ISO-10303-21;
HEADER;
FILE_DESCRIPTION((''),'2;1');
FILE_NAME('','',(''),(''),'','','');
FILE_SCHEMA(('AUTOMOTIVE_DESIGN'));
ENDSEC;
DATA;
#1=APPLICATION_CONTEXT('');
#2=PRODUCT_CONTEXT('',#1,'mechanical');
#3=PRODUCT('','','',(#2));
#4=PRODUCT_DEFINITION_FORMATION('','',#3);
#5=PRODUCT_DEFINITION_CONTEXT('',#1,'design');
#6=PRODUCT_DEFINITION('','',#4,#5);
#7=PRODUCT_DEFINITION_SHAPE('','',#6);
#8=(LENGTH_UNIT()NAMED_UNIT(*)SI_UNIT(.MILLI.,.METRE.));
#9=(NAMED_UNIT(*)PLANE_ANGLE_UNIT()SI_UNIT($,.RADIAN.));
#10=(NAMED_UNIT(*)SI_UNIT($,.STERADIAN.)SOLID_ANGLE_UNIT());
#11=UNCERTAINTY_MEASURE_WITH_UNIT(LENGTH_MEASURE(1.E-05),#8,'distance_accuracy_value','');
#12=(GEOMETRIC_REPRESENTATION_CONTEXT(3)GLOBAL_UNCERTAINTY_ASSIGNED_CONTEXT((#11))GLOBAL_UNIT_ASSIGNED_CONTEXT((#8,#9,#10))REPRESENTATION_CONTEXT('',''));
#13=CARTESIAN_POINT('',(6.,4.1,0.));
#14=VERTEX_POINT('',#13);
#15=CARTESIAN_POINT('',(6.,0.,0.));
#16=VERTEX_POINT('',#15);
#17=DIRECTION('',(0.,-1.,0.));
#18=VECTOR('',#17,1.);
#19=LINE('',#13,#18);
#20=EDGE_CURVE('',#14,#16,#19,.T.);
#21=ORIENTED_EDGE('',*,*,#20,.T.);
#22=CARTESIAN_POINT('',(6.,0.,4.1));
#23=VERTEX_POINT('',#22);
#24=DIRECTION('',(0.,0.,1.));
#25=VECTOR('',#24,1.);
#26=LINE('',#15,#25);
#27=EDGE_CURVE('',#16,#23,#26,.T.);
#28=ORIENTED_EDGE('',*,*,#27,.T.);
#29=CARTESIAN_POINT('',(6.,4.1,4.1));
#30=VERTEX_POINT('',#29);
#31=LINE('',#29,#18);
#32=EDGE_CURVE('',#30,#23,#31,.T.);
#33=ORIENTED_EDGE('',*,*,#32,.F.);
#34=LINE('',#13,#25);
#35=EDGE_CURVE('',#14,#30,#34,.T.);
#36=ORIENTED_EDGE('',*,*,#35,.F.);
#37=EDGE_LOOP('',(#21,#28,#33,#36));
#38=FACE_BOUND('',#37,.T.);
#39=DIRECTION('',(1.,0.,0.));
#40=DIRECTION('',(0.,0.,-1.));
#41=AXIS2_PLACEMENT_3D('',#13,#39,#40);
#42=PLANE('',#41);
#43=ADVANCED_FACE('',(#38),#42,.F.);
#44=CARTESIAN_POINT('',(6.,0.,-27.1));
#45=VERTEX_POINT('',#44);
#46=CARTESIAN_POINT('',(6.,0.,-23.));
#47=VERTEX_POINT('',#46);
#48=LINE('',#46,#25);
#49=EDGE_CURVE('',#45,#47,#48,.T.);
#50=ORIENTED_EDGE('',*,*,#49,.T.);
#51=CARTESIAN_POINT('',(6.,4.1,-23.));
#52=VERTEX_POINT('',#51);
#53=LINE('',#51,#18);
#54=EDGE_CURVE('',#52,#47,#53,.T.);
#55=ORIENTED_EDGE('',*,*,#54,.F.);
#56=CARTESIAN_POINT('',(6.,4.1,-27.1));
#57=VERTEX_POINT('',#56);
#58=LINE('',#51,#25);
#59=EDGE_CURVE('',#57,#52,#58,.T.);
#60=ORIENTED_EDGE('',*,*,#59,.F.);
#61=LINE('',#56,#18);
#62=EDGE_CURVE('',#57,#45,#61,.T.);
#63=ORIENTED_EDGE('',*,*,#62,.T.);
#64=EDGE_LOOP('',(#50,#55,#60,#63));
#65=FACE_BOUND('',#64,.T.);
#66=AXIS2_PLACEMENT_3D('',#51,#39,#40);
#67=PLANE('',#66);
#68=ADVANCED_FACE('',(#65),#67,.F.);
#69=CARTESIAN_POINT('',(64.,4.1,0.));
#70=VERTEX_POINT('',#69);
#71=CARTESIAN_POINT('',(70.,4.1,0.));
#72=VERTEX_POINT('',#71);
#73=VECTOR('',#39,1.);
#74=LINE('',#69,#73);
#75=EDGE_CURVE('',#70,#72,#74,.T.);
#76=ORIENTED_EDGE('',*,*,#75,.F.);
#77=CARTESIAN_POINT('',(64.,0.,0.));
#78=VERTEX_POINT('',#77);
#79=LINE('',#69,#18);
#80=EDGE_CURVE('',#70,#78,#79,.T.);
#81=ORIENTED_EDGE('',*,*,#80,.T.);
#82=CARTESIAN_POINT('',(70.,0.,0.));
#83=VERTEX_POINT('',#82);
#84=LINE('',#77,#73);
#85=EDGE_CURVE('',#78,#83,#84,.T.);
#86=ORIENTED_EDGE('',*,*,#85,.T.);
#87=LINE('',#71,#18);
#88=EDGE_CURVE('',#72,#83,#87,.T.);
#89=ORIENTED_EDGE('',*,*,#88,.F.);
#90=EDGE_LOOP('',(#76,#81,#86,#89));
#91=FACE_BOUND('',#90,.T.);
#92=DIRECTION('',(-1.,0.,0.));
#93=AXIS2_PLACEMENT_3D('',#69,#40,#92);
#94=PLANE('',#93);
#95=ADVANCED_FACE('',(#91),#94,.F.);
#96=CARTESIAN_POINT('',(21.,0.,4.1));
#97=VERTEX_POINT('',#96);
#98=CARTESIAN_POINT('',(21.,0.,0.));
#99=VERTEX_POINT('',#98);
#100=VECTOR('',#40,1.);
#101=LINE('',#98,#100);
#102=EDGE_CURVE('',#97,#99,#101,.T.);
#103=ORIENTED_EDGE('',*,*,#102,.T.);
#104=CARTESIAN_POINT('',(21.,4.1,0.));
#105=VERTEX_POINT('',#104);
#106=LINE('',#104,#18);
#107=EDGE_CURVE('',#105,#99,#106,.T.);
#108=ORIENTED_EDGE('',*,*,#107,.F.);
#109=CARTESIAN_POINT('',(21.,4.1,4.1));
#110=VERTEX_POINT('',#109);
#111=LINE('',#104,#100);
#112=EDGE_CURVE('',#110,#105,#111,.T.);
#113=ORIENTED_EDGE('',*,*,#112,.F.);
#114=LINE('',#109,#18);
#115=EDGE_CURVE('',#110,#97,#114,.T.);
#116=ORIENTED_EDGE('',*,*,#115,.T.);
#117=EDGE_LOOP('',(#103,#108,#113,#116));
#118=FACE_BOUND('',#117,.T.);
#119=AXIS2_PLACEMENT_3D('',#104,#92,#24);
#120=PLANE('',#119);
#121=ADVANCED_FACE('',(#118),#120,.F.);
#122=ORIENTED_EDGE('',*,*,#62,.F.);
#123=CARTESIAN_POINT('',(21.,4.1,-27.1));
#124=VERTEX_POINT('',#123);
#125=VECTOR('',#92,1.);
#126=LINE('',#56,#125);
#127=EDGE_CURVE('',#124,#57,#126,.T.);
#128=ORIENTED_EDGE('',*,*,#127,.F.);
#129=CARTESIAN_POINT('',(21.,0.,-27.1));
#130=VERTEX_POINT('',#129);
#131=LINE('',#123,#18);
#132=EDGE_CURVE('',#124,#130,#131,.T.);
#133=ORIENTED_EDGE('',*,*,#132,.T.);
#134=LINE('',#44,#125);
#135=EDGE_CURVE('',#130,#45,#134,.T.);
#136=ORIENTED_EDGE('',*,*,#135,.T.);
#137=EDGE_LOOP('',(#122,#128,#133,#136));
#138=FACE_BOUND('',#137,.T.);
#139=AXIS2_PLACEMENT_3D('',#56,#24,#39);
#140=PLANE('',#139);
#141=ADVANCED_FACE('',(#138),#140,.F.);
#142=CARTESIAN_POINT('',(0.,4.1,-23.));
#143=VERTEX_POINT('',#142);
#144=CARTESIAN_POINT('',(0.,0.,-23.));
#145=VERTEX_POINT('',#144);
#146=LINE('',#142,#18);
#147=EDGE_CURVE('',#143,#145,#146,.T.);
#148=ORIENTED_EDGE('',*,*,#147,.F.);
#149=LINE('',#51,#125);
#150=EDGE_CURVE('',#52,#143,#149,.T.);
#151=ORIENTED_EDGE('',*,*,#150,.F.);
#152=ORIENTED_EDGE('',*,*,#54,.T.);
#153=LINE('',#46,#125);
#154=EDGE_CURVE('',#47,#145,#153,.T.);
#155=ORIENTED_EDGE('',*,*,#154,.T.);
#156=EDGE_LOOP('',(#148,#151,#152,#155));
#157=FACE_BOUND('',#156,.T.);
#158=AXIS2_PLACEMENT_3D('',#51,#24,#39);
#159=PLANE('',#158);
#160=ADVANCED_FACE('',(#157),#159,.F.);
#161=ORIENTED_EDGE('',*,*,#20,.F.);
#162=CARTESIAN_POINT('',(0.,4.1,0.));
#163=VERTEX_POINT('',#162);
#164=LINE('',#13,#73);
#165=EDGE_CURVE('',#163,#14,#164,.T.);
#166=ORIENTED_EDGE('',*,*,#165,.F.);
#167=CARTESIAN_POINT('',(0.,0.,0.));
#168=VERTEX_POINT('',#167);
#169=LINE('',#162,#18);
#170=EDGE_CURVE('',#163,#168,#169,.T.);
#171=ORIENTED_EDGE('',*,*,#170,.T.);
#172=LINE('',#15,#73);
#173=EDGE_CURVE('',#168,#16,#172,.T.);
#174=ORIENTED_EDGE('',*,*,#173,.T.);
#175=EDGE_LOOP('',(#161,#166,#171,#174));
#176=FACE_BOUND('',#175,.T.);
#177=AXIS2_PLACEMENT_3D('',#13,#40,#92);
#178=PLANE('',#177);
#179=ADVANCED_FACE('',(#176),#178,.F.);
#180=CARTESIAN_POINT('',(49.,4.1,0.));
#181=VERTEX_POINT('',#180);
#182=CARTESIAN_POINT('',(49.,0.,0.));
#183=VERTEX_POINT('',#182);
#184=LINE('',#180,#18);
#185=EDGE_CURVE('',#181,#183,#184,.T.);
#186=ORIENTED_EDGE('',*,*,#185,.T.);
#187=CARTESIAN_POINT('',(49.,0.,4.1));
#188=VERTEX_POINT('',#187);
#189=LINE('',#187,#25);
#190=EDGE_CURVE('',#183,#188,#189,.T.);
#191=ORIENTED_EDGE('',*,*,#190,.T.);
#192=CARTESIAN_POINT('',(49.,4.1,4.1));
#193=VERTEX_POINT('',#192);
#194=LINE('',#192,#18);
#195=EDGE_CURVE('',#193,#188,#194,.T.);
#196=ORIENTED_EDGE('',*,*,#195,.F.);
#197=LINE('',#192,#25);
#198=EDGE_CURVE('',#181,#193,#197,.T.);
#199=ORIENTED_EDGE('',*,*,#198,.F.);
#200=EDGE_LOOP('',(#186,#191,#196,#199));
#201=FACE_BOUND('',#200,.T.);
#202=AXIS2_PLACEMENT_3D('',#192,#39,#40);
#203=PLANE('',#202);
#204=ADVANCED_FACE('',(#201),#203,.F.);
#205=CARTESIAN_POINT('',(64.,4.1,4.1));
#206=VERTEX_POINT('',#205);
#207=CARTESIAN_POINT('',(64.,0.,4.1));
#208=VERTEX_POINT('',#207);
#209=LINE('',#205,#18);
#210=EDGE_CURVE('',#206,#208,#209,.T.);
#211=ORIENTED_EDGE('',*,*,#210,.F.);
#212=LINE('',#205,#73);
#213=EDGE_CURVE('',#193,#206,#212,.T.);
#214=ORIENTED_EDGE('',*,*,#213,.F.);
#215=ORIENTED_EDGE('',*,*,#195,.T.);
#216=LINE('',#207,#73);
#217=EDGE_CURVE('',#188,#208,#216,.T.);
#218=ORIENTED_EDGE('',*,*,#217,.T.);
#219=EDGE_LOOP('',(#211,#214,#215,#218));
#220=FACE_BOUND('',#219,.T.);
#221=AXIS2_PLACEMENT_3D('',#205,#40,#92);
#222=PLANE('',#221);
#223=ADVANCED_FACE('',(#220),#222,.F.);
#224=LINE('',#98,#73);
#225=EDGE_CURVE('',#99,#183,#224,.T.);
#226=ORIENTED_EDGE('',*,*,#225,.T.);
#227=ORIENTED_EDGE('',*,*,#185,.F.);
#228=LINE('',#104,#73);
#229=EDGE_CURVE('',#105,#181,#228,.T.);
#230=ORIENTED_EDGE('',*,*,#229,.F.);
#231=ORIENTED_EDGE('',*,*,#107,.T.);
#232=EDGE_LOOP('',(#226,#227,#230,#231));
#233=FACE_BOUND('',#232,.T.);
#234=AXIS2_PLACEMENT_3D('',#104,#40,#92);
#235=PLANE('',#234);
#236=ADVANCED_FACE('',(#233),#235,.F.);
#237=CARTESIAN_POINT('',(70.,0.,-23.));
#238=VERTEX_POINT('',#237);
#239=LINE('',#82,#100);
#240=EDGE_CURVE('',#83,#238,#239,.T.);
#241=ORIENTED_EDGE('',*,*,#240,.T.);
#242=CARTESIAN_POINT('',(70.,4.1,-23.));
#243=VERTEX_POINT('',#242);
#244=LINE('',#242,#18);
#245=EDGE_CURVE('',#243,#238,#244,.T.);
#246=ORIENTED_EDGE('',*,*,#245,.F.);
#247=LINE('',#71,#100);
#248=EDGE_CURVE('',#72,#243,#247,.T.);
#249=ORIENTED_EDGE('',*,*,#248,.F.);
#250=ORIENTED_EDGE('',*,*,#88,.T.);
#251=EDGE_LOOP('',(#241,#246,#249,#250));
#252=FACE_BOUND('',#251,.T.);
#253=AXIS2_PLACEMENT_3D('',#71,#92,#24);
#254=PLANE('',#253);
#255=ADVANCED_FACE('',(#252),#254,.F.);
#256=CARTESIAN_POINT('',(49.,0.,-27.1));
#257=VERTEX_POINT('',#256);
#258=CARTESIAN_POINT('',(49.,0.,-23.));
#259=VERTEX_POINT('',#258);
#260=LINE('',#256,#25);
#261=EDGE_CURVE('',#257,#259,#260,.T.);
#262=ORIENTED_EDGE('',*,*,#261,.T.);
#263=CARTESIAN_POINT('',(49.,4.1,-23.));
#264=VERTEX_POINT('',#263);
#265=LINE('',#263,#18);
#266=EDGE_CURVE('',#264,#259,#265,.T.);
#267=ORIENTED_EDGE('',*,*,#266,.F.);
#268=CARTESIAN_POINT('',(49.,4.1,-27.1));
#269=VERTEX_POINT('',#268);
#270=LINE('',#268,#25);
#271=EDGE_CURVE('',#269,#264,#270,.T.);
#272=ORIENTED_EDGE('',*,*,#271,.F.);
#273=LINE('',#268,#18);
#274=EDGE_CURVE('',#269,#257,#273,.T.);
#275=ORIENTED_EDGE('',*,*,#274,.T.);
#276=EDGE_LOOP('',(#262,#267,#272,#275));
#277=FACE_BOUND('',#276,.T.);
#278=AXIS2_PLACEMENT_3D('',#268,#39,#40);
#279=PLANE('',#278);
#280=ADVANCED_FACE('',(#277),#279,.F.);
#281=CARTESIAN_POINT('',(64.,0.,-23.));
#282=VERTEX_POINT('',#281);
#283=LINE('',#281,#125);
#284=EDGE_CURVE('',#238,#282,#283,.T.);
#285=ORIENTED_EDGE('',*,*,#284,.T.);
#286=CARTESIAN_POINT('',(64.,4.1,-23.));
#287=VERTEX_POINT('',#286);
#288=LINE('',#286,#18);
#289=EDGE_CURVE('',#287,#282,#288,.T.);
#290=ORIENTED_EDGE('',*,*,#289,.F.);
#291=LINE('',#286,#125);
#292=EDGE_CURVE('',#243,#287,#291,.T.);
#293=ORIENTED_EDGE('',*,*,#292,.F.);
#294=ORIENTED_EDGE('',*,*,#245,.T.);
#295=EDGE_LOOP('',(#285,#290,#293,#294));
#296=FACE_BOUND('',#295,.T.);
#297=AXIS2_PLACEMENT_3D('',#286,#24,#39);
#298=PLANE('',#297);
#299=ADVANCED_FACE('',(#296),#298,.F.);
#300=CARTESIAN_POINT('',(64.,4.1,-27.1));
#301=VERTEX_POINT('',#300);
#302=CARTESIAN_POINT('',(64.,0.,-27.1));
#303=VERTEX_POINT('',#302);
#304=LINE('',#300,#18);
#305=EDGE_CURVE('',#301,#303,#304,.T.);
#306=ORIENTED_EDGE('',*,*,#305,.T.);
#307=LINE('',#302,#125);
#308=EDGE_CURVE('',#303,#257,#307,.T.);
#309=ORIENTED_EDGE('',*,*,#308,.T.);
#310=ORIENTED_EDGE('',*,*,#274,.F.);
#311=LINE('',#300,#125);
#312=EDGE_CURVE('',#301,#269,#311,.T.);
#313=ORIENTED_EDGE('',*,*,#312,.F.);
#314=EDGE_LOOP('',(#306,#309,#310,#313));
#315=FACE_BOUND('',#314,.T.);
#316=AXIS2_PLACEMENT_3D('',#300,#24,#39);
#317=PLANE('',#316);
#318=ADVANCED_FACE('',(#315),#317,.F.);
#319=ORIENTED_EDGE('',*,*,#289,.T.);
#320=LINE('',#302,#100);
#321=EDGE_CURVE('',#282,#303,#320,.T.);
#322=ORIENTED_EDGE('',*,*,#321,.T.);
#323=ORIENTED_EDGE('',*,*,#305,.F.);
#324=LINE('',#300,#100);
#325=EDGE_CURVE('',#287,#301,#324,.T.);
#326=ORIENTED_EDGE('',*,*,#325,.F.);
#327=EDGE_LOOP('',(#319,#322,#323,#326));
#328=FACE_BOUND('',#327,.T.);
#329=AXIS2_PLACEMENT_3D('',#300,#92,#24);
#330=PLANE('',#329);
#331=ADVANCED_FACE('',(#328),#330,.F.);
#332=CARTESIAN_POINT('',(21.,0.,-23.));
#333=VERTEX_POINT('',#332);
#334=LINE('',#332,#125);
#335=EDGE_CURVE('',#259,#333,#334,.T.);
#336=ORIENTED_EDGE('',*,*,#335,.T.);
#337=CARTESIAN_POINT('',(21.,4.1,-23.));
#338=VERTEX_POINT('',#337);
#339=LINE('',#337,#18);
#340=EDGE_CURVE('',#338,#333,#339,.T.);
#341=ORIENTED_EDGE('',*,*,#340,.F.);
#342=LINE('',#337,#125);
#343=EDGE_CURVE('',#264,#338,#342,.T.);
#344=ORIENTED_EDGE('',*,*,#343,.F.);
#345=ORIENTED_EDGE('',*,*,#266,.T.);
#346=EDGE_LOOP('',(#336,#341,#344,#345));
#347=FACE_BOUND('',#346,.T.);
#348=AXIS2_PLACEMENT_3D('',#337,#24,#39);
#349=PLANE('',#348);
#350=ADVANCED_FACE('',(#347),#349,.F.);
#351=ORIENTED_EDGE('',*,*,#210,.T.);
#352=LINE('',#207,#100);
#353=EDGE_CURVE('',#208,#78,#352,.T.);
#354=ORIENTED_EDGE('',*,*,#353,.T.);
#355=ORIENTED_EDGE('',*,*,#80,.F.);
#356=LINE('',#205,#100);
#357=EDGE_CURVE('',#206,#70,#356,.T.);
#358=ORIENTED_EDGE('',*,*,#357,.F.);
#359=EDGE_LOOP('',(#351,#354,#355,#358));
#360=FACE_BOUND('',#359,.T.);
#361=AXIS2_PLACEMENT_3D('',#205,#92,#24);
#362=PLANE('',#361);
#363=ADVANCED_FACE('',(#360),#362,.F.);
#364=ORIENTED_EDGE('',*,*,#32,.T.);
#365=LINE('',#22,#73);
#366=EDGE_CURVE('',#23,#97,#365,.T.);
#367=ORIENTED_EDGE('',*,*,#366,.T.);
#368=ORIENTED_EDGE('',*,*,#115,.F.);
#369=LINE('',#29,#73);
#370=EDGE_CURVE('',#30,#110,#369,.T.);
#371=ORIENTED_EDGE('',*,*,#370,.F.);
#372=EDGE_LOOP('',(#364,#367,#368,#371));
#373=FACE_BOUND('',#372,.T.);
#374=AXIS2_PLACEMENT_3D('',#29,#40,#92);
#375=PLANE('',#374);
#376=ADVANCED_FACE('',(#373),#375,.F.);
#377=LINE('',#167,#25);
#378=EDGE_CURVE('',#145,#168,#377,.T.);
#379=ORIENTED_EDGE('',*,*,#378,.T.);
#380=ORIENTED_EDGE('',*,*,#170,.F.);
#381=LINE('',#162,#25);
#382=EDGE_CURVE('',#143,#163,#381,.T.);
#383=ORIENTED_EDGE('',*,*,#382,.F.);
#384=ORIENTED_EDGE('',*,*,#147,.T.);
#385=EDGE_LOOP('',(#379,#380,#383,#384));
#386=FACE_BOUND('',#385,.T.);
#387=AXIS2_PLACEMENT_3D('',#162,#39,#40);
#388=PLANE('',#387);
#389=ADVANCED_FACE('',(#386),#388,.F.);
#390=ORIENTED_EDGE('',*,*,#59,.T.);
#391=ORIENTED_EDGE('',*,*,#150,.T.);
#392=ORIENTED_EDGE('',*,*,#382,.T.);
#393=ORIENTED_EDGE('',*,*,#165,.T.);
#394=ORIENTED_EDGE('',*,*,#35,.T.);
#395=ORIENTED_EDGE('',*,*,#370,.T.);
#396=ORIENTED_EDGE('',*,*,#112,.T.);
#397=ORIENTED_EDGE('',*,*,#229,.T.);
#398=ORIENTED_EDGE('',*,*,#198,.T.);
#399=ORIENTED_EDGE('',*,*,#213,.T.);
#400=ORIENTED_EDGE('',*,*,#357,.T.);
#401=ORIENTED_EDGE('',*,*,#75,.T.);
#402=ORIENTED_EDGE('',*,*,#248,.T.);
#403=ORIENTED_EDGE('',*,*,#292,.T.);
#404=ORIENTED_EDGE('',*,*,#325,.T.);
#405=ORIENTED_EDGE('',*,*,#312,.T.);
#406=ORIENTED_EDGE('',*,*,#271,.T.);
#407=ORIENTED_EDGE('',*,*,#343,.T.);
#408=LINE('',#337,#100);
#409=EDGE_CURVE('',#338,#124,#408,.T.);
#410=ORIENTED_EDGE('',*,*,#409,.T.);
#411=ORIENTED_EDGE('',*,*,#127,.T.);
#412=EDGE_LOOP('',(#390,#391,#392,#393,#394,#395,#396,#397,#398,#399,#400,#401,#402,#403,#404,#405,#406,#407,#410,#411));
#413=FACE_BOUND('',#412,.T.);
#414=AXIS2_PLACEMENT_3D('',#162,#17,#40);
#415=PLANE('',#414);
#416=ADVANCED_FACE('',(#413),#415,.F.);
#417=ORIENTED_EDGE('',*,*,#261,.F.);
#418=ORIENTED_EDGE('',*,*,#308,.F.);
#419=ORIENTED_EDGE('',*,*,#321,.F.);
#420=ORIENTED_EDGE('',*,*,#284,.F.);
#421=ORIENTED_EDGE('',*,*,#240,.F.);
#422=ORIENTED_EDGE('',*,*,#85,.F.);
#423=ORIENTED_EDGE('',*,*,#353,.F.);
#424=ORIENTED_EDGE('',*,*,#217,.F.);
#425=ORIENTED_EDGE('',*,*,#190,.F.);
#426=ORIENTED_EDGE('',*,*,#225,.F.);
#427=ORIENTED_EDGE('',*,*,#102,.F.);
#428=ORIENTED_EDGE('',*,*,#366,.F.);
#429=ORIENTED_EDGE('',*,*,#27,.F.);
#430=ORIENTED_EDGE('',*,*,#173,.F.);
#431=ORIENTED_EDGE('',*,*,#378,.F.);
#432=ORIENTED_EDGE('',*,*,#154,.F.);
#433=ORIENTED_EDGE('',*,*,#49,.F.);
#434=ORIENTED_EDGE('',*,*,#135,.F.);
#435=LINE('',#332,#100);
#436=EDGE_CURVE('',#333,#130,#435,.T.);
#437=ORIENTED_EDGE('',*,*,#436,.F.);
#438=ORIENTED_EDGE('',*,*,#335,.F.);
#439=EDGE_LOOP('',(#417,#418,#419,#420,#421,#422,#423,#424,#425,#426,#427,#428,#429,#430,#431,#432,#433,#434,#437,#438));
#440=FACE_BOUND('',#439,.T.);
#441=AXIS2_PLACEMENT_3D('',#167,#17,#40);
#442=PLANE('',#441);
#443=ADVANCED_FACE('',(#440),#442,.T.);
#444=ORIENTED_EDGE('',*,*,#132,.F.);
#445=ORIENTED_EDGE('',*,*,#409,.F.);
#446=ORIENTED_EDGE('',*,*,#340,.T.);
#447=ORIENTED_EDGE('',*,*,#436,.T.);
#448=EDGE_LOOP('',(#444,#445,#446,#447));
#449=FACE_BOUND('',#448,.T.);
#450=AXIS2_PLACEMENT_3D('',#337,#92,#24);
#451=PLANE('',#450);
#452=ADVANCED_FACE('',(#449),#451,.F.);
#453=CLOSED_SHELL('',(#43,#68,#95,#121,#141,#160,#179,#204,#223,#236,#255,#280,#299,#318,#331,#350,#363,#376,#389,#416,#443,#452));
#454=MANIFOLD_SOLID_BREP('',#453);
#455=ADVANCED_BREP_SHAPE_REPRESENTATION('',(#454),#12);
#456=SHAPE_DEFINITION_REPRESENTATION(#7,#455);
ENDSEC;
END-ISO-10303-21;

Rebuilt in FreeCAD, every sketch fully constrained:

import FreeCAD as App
import Part
import Sketcher


def add_polygon(sketch, points):
    """Adds a closed chain of lines whose ends are joined by coincident constraints."""
    first, n = sketch.GeometryCount, len(points)
    for a, b in zip(points, points[1:] + points[:1]):
        sketch.addGeometry(Part.LineSegment(App.Vector(*a, 0), App.Vector(*b, 0)), False)
    for i in range(n):
        sketch.addConstraint(Sketcher.Constraint("Coincident", first + i, 2, first + (i + 1) % n, 1))

doc = App.newDocument("Part")
params = doc.addObject("Spreadsheet::Sheet", "Params")
for row, (alias, value) in enumerate([
    ("sketch1_width", "6 mm"),
    ("sketch1_width2", "15 mm"),
    ("sketch1_width3", "28 mm"),
    ("sketch1_height", "23 mm"),
    ("sketch1_height2", "4.1 mm"),
    ("pad1_length", "4.1 mm"),
], start=1):
    params.set(f"A{row}", alias)
    params.set(f"B{row}", "=" + value)
    params.setAlias(f"B{row}", alias)

body = doc.addObject("PartDesign::Body", "Body")

sketch1 = body.newObject("Sketcher::SketchObject", "Sketch")
sketch1.AttachmentSupport = (doc.getObject("XZ_Plane"), [""])
sketch1.MapMode = "FlatFace"
add_polygon(sketch1, [(0, -23), (0, 0), (6, 0), (6, 4.1), (21, 4.1), (21, 0), (49, 0), (49, 4.1), (64, 4.1), (64, 0), (70, 0), (70, -23), (64, -23), (64, -27.1), (49, -27.1), (49, -23), (21, -23), (21, -27.1), (6, -27.1), (6, -23)])
sketch1.addConstraint([
    Sketcher.Constraint("Vertical", 0),
    Sketcher.Constraint("Horizontal", 1),
    Sketcher.Constraint("Vertical", 2),
    Sketcher.Constraint("Horizontal", 3),
    Sketcher.Constraint("Vertical", 4),
    Sketcher.Constraint("Horizontal", 5),
    Sketcher.Constraint("Vertical", 6),
    Sketcher.Constraint("Horizontal", 7),
    Sketcher.Constraint("Vertical", 8),
    Sketcher.Constraint("Horizontal", 9),
    Sketcher.Constraint("Vertical", 10),
    Sketcher.Constraint("Horizontal", 11),
    Sketcher.Constraint("Vertical", 12),
    Sketcher.Constraint("Horizontal", 13),
    Sketcher.Constraint("Vertical", 14),
    Sketcher.Constraint("Horizontal", 15),
    Sketcher.Constraint("Vertical", 16),
    Sketcher.Constraint("Horizontal", 17),
    Sketcher.Constraint("Vertical", 18),
    Sketcher.Constraint("Horizontal", 19),
    Sketcher.Constraint("Coincident", 0, 2, -1, 1),
    Sketcher.Constraint("PointOnObject", 4, 2, -1),
    Sketcher.Constraint("PointOnObject", 8, 2, -1),
    Sketcher.Constraint("Horizontal", 3, 2, 6, 2),
    Sketcher.Constraint("Horizontal", 11, 2, 14, 2),
    Sketcher.Constraint("Horizontal", 13, 2, 16, 2),
    Sketcher.Constraint("Horizontal", 15, 2, 18, 2),
    Sketcher.Constraint("Vertical", 8, 2, 11, 2),
    Sketcher.Constraint("Vertical", 6, 2, 13, 2),
    Sketcher.Constraint("Vertical", 4, 2, 15, 2),
    Sketcher.Constraint("Vertical", 2, 2, 17, 2),
    Sketcher.Constraint("Equal", 3, 7),
    Sketcher.Constraint("Equal", 1, 9),
    Sketcher.Constraint("Equal", 8, 12),
    Sketcher.Constraint("DistanceX", 1, 1, 1, 2, 6.0),
    Sketcher.Constraint("DistanceX", 3, 1, 3, 2, 15.0),
    Sketcher.Constraint("DistanceX", 5, 1, 5, 2, 28.0),
    Sketcher.Constraint("DistanceY", 0, 1, 0, 2, 23.0),
    Sketcher.Constraint("DistanceY", 2, 1, 2, 2, 4.1),
])
sketch1.setExpression("Constraints[54]", "Params.sketch1_width")
sketch1.setExpression("Constraints[55]", "Params.sketch1_width2")
sketch1.setExpression("Constraints[56]", "Params.sketch1_width3")
sketch1.setExpression("Constraints[57]", "Params.sketch1_height")
sketch1.setExpression("Constraints[58]", "Params.sketch1_height2")
pad1 = body.newObject("PartDesign::Pad", "Pad")
pad1.Profile = sketch1
pad1.setExpression("Length", "Params.pad1_length")
pad1.Reversed = True

doc.recompute()
